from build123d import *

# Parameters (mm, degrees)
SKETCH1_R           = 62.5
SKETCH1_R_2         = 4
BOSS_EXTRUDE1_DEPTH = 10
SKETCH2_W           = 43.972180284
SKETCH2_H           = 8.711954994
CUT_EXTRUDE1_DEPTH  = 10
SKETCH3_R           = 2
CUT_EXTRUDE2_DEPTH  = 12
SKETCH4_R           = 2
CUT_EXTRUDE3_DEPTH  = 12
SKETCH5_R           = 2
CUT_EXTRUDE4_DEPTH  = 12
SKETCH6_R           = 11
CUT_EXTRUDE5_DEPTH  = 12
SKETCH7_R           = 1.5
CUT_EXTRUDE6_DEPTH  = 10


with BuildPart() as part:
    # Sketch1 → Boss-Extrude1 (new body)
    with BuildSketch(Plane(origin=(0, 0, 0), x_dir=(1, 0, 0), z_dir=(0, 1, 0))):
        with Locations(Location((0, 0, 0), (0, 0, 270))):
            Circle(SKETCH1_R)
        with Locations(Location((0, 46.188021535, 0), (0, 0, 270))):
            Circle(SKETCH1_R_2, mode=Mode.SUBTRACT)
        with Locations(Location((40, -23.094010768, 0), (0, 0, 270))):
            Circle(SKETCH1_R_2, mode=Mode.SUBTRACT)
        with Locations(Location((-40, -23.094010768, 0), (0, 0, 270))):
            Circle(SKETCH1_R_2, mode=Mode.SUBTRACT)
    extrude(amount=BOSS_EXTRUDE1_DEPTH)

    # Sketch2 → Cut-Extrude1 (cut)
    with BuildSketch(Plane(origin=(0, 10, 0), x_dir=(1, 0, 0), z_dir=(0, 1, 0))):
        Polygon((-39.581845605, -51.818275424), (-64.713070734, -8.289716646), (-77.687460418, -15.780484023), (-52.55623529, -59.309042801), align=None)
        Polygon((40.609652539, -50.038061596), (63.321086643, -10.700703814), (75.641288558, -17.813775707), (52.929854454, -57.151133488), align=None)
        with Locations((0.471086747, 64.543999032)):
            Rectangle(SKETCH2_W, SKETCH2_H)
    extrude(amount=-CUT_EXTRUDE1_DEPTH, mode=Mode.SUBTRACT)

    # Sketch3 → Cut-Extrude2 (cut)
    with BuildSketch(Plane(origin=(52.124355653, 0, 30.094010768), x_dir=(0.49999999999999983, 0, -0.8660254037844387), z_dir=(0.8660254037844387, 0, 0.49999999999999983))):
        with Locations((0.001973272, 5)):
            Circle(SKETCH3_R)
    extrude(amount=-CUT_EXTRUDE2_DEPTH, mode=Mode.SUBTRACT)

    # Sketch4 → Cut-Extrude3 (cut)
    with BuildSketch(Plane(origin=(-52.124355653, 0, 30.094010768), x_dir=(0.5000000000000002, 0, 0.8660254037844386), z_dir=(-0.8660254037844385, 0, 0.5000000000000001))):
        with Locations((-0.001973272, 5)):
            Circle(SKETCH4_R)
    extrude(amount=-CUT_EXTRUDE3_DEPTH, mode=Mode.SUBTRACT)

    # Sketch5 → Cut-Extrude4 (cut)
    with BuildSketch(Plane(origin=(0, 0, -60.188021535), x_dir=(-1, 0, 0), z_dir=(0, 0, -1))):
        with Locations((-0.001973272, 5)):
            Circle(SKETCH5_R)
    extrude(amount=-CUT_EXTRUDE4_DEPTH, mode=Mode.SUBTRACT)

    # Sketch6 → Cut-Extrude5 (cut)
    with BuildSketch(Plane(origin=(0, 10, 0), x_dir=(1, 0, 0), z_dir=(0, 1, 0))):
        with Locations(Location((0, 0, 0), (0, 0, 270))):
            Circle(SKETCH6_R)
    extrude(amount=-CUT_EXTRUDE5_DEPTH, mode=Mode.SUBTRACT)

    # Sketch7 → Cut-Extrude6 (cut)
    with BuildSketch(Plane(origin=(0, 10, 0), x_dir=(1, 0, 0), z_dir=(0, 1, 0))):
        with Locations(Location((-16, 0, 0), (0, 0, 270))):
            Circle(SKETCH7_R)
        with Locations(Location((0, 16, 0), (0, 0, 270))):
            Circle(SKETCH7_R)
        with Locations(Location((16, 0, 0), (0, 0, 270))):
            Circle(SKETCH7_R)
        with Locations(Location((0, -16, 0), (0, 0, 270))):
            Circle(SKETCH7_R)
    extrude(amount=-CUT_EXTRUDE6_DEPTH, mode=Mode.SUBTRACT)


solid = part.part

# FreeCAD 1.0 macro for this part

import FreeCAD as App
import Part
import Sketcher

V = App.Vector
Q = App.Units.Quantity


def add_polygon(sketch, points):
    """Adds a closed chain of lines whose ends are joined by coincident constraints."""
    first, n = sketch.GeometryCount, len(points)
    for a, b in zip(points, points[1:] + points[:1]):
        sketch.addGeometry(Part.LineSegment(App.Vector(*a, 0), App.Vector(*b, 0)), False)
    for i in range(n):
        sketch.addConstraint(Sketcher.Constraint("Coincident", first + i, 2, first + (i + 1) % n, 1))

doc = App.newDocument("Part")
params = doc.addObject("Spreadsheet::Sheet", "Params")
for row, (alias, value) in enumerate([
    ("sketch1_diameter", "125 mm"),
    ("sketch1_diameter2", "8 mm"),
    ("pad1_length", "10 mm"),
    ("pocket1_length", "10 mm"),
    ("sketch3_diameter", "4 mm"),
    ("pocket2_length", "12 mm"),
    ("sketch4_diameter", "4 mm"),
    ("pocket3_length", "12 mm"),
    ("sketch5_diameter", "4 mm"),
    ("pocket4_length", "12 mm"),
    ("sketch6_diameter", "22 mm"),
    ("pocket5_length", "12 mm"),
    ("sketch7_diameter", "3 mm"),
    ("pocket6_length", "10 mm"),
], start=1):
    params.set(f"A{row}", alias)
    params.set(f"B{row}", "=" + value)
    params.setAlias(f"B{row}", alias)

body = doc.addObject("PartDesign::Body", "Body")

# Sketch on XZ plane
sketch1 = body.newObject("Sketcher::SketchObject", "Sketch")
sketch1.AttachmentSupport = (doc.getObject("XZ_Plane"), [""])
sketch1.MapMode = "FlatFace"
sketch1.addGeometry([
    Part.Circle(V(0, 0, 0), V(0, 0, 1), 62.5),
    Part.Circle(V(0, -46.2, 0), V(0, 0, 1), 4),
    Part.Circle(V(-40, 23.1, 0), V(0, 0, 1), 4),
    Part.Circle(V(40, 23.1, 0), V(0, 0, 1), 4),
], False)
sketch1.addConstraint([
    Sketcher.Constraint("Coincident", 0, 3, -1, 1),
    Sketcher.Constraint("Equal", 1, 2),
    Sketcher.Constraint("Equal", 2, 3),
    Sketcher.Constraint("Symmetric", 2, 3, 3, 3, -2),
    Sketcher.Constraint("PointOnObject", 1, 3, -2),
    Sketcher.Constraint("Diameter", 0, 125.0),
    Sketcher.Constraint("Diameter", 1, 8.0),
    Sketcher.Constraint("DistanceX", 2, 3, -1, 1, 40.0),
    Sketcher.Constraint("DistanceY", 1, 3, -1, 1, 46.188022),
    Sketcher.Constraint("DistanceY", -1, 1, 2, 3, 23.094011),
])
sketch1.setExpression("Constraints[5]", "Params.sketch1_diameter")
sketch1.setExpression("Constraints[6]", "Params.sketch1_diameter2")
pad1 = body.newObject("PartDesign::Pad", "Pad")
pad1.Profile = sketch1
pad1.setExpression("Length", "Params.pad1_length")
pad1.Reversed = True

# Sketch on XZ plane
sketch2 = body.newObject("Sketcher::SketchObject", "Sketch001")
sketch2.AttachmentSupport = (doc.getObject("XZ_Plane"), [""])
sketch2.MapMode = "FlatFace"
sketch2.AttachmentOffset = App.Placement(V(0, 0, -10), App.Rotation())
add_polygon(sketch2, [(-40, 52), (-65, 8), (-78, 16), (-53, 59)])  # lines 0-3
add_polygon(sketch2, [(63, 11), (41, 50), (53, 57), (76, 18)])  # lines 4-7
add_polygon(sketch2, [(-22, -69), (-22, -60), (22, -60), (22, -69)])  # lines 8-11
sketch2.addConstraint([
    Sketcher.Constraint("Vertical", 8),
    Sketcher.Constraint("Horizontal", 9),
    Sketcher.Constraint("Vertical", 10),
    Sketcher.Constraint("Horizontal", 11),
    Sketcher.Constraint("Perpendicular", 0, 1),
    Sketcher.Constraint("Perpendicular", 1, 2),
    Sketcher.Constraint("Perpendicular", 2, 3),
    Sketcher.Constraint("Perpendicular", 4, 5),
    Sketcher.Constraint("Perpendicular", 5, 6),
    Sketcher.Constraint("Perpendicular", 6, 7),
    Sketcher.Constraint("Angle", 0, Q("-120 deg")),
    Sketcher.Constraint("Angle", 4, Q("120 deg")),
    Sketcher.Constraint("DistanceX", 9, 1, 9, 2, 43.97218),
    Sketcher.Constraint("DistanceX", 3, 2, 4, 2, 80.191498),
    Sketcher.Constraint("DistanceX", 4, 2, 5, 2, 12.320202),
    Sketcher.Constraint("DistanceY", 6, 2, 3, 2, 34.0045),
    Sketcher.Constraint("Distance", 0, 50.26245),
    Sketcher.Constraint("Distance", 4, 45.422868),
    Sketcher.Constraint("DistanceY", 8, 1, 8, 2, 8.711955),
    Sketcher.Constraint("DistanceX", 0, 2, -1, 1, 64.713071),
    Sketcher.Constraint("DistanceX", 1, 2, -1, 1, 77.68746),
    Sketcher.Constraint("DistanceY", -1, 1, 4, 2, 50.038062),
    Sketcher.Constraint("DistanceY", 8, 2, -1, 1, 60.188022),
    Sketcher.Constraint("DistanceX", 8, 2, 7, 2, 84.83609),
])
pocket1 = body.newObject("PartDesign::Pocket", "Pocket")
pocket1.Profile = sketch2
pocket1.setExpression("Length", "Params.pocket1_length")
pocket1.Reversed = True

# Sketch on an angled plane
sketch3 = body.newObject("Sketcher::SketchObject", "Sketch002")
sketch3.Placement = App.Placement(V(52.124356, 0, 30.094011), App.Rotation(V(0.5, 0, -0.866025404), V(0, 1, 0), V(0.866025404, 0, 0.5), "ZXY"))
sketch3.addGeometry(Part.Circle(V(0, 5, 0), V(0, 0, 1), 2), False)
sketch3.addConstraint([
    Sketcher.Constraint("Diameter", 0, 4.0),
    Sketcher.Constraint("DistanceY", -1, 1, 0, 3, 5.0),
    Sketcher.Constraint("DistanceX", -1, 1, 0, 3, 0.001973),
])
sketch3.setExpression("Constraints[0]", "Params.sketch3_diameter")
pocket2 = body.newObject("PartDesign::Pocket", "Pocket001")
pocket2.Profile = sketch3
pocket2.setExpression("Length", "Params.pocket2_length")

# Sketch on an angled plane
sketch4 = body.newObject("Sketcher::SketchObject", "Sketch003")
sketch4.Placement = App.Placement(V(-52.124356, 0, 30.094011), App.Rotation(V(0.5, 0, 0.866025404), V(0, 1, 0), V(-0.866025404, 0, 0.5), "ZXY"))
sketch4.addGeometry(Part.Circle(V(0, 5, 0), V(0, 0, 1), 2), False)
sketch4.addConstraint([
    Sketcher.Constraint("Diameter", 0, 4.0),
    Sketcher.Constraint("DistanceY", -1, 1, 0, 3, 5.0),
    Sketcher.Constraint("DistanceX", 0, 3, -1, 1, 0.001973),
])
sketch4.setExpression("Constraints[0]", "Params.sketch4_diameter")
pocket3 = body.newObject("PartDesign::Pocket", "Pocket002")
pocket3.Profile = sketch4
pocket3.setExpression("Length", "Params.pocket3_length")

# Sketch on XY plane
sketch5 = body.newObject("Sketcher::SketchObject", "Sketch004")
sketch5.AttachmentSupport = (doc.getObject("XY_Plane"), [""])
sketch5.MapMode = "FlatFace"
sketch5.AttachmentOffset = App.Placement(V(0, 0, -60.188022), App.Rotation())
sketch5.addGeometry(Part.Circle(V(0, 5, 0), V(0, 0, 1), 2), False)
sketch5.addConstraint([
    Sketcher.Constraint("Diameter", 0, 4.0),
    Sketcher.Constraint("DistanceY", -1, 1, 0, 3, 5.0),
    Sketcher.Constraint("DistanceX", -1, 1, 0, 3, 0.001973),
])
sketch5.setExpression("Constraints[0]", "Params.sketch5_diameter")
pocket4 = body.newObject("PartDesign::Pocket", "Pocket003")
pocket4.Profile = sketch5
pocket4.setExpression("Length", "Params.pocket4_length")
pocket4.Reversed = True

# Sketch on XZ plane
sketch6 = body.newObject("Sketcher::SketchObject", "Sketch005")
sketch6.AttachmentSupport = (doc.getObject("XZ_Plane"), [""])
sketch6.MapMode = "FlatFace"
sketch6.AttachmentOffset = App.Placement(V(0, 0, -10), App.Rotation())
sketch6.addGeometry(Part.Circle(V(0, 0, 0), V(0, 0, 1), 11), False)
sketch6.addConstraint([
    Sketcher.Constraint("Coincident", 0, 3, -1, 1),
    Sketcher.Constraint("Diameter", 0, 22.0),
])
sketch6.setExpression("Constraints[1]", "Params.sketch6_diameter")
pocket5 = body.newObject("PartDesign::Pocket", "Pocket004")
pocket5.Profile = sketch6
pocket5.setExpression("Length", "Params.pocket5_length")
pocket5.Reversed = True

# Sketch on XZ plane
sketch7 = body.newObject("Sketcher::SketchObject", "Sketch006")
sketch7.AttachmentSupport = (doc.getObject("XZ_Plane"), [""])
sketch7.MapMode = "FlatFace"
sketch7.AttachmentOffset = App.Placement(V(0, 0, -10), App.Rotation())
sketch7.addGeometry([
    Part.Circle(V(-16, 0, 0), V(0, 0, 1), 1.5),
    Part.Circle(V(0, -16, 0), V(0, 0, 1), 1.5),
    Part.Circle(V(16, 0, 0), V(0, 0, 1), 1.5),
    Part.Circle(V(0, 16, 0), V(0, 0, 1), 1.5),
], False)
sketch7.addConstraint([
    Sketcher.Constraint("Equal", 0, 1),
    Sketcher.Constraint("Equal", 1, 2),
    Sketcher.Constraint("Equal", 2, 3),
    Sketcher.Constraint("Symmetric", 0, 3, 2, 3, -1, 1),
    Sketcher.Constraint("Symmetric", 1, 3, 3, 3, -1, 1),
    Sketcher.Constraint("PointOnObject", 0, 3, -1),
    Sketcher.Constraint("PointOnObject", 1, 3, -2),
    Sketcher.Constraint("Diameter", 0, 3.0),
    Sketcher.Constraint("DistanceX", 0, 3, -1, 1, 16.0),
    Sketcher.Constraint("DistanceY", 1, 3, -1, 1, 16.0),
])
sketch7.setExpression("Constraints[7]", "Params.sketch7_diameter")
pocket6 = body.newObject("PartDesign::Pocket", "Pocket005")
pocket6.Profile = sketch7
pocket6.setExpression("Length", "Params.pocket6_length")
pocket6.Reversed = True

doc.recompute()
